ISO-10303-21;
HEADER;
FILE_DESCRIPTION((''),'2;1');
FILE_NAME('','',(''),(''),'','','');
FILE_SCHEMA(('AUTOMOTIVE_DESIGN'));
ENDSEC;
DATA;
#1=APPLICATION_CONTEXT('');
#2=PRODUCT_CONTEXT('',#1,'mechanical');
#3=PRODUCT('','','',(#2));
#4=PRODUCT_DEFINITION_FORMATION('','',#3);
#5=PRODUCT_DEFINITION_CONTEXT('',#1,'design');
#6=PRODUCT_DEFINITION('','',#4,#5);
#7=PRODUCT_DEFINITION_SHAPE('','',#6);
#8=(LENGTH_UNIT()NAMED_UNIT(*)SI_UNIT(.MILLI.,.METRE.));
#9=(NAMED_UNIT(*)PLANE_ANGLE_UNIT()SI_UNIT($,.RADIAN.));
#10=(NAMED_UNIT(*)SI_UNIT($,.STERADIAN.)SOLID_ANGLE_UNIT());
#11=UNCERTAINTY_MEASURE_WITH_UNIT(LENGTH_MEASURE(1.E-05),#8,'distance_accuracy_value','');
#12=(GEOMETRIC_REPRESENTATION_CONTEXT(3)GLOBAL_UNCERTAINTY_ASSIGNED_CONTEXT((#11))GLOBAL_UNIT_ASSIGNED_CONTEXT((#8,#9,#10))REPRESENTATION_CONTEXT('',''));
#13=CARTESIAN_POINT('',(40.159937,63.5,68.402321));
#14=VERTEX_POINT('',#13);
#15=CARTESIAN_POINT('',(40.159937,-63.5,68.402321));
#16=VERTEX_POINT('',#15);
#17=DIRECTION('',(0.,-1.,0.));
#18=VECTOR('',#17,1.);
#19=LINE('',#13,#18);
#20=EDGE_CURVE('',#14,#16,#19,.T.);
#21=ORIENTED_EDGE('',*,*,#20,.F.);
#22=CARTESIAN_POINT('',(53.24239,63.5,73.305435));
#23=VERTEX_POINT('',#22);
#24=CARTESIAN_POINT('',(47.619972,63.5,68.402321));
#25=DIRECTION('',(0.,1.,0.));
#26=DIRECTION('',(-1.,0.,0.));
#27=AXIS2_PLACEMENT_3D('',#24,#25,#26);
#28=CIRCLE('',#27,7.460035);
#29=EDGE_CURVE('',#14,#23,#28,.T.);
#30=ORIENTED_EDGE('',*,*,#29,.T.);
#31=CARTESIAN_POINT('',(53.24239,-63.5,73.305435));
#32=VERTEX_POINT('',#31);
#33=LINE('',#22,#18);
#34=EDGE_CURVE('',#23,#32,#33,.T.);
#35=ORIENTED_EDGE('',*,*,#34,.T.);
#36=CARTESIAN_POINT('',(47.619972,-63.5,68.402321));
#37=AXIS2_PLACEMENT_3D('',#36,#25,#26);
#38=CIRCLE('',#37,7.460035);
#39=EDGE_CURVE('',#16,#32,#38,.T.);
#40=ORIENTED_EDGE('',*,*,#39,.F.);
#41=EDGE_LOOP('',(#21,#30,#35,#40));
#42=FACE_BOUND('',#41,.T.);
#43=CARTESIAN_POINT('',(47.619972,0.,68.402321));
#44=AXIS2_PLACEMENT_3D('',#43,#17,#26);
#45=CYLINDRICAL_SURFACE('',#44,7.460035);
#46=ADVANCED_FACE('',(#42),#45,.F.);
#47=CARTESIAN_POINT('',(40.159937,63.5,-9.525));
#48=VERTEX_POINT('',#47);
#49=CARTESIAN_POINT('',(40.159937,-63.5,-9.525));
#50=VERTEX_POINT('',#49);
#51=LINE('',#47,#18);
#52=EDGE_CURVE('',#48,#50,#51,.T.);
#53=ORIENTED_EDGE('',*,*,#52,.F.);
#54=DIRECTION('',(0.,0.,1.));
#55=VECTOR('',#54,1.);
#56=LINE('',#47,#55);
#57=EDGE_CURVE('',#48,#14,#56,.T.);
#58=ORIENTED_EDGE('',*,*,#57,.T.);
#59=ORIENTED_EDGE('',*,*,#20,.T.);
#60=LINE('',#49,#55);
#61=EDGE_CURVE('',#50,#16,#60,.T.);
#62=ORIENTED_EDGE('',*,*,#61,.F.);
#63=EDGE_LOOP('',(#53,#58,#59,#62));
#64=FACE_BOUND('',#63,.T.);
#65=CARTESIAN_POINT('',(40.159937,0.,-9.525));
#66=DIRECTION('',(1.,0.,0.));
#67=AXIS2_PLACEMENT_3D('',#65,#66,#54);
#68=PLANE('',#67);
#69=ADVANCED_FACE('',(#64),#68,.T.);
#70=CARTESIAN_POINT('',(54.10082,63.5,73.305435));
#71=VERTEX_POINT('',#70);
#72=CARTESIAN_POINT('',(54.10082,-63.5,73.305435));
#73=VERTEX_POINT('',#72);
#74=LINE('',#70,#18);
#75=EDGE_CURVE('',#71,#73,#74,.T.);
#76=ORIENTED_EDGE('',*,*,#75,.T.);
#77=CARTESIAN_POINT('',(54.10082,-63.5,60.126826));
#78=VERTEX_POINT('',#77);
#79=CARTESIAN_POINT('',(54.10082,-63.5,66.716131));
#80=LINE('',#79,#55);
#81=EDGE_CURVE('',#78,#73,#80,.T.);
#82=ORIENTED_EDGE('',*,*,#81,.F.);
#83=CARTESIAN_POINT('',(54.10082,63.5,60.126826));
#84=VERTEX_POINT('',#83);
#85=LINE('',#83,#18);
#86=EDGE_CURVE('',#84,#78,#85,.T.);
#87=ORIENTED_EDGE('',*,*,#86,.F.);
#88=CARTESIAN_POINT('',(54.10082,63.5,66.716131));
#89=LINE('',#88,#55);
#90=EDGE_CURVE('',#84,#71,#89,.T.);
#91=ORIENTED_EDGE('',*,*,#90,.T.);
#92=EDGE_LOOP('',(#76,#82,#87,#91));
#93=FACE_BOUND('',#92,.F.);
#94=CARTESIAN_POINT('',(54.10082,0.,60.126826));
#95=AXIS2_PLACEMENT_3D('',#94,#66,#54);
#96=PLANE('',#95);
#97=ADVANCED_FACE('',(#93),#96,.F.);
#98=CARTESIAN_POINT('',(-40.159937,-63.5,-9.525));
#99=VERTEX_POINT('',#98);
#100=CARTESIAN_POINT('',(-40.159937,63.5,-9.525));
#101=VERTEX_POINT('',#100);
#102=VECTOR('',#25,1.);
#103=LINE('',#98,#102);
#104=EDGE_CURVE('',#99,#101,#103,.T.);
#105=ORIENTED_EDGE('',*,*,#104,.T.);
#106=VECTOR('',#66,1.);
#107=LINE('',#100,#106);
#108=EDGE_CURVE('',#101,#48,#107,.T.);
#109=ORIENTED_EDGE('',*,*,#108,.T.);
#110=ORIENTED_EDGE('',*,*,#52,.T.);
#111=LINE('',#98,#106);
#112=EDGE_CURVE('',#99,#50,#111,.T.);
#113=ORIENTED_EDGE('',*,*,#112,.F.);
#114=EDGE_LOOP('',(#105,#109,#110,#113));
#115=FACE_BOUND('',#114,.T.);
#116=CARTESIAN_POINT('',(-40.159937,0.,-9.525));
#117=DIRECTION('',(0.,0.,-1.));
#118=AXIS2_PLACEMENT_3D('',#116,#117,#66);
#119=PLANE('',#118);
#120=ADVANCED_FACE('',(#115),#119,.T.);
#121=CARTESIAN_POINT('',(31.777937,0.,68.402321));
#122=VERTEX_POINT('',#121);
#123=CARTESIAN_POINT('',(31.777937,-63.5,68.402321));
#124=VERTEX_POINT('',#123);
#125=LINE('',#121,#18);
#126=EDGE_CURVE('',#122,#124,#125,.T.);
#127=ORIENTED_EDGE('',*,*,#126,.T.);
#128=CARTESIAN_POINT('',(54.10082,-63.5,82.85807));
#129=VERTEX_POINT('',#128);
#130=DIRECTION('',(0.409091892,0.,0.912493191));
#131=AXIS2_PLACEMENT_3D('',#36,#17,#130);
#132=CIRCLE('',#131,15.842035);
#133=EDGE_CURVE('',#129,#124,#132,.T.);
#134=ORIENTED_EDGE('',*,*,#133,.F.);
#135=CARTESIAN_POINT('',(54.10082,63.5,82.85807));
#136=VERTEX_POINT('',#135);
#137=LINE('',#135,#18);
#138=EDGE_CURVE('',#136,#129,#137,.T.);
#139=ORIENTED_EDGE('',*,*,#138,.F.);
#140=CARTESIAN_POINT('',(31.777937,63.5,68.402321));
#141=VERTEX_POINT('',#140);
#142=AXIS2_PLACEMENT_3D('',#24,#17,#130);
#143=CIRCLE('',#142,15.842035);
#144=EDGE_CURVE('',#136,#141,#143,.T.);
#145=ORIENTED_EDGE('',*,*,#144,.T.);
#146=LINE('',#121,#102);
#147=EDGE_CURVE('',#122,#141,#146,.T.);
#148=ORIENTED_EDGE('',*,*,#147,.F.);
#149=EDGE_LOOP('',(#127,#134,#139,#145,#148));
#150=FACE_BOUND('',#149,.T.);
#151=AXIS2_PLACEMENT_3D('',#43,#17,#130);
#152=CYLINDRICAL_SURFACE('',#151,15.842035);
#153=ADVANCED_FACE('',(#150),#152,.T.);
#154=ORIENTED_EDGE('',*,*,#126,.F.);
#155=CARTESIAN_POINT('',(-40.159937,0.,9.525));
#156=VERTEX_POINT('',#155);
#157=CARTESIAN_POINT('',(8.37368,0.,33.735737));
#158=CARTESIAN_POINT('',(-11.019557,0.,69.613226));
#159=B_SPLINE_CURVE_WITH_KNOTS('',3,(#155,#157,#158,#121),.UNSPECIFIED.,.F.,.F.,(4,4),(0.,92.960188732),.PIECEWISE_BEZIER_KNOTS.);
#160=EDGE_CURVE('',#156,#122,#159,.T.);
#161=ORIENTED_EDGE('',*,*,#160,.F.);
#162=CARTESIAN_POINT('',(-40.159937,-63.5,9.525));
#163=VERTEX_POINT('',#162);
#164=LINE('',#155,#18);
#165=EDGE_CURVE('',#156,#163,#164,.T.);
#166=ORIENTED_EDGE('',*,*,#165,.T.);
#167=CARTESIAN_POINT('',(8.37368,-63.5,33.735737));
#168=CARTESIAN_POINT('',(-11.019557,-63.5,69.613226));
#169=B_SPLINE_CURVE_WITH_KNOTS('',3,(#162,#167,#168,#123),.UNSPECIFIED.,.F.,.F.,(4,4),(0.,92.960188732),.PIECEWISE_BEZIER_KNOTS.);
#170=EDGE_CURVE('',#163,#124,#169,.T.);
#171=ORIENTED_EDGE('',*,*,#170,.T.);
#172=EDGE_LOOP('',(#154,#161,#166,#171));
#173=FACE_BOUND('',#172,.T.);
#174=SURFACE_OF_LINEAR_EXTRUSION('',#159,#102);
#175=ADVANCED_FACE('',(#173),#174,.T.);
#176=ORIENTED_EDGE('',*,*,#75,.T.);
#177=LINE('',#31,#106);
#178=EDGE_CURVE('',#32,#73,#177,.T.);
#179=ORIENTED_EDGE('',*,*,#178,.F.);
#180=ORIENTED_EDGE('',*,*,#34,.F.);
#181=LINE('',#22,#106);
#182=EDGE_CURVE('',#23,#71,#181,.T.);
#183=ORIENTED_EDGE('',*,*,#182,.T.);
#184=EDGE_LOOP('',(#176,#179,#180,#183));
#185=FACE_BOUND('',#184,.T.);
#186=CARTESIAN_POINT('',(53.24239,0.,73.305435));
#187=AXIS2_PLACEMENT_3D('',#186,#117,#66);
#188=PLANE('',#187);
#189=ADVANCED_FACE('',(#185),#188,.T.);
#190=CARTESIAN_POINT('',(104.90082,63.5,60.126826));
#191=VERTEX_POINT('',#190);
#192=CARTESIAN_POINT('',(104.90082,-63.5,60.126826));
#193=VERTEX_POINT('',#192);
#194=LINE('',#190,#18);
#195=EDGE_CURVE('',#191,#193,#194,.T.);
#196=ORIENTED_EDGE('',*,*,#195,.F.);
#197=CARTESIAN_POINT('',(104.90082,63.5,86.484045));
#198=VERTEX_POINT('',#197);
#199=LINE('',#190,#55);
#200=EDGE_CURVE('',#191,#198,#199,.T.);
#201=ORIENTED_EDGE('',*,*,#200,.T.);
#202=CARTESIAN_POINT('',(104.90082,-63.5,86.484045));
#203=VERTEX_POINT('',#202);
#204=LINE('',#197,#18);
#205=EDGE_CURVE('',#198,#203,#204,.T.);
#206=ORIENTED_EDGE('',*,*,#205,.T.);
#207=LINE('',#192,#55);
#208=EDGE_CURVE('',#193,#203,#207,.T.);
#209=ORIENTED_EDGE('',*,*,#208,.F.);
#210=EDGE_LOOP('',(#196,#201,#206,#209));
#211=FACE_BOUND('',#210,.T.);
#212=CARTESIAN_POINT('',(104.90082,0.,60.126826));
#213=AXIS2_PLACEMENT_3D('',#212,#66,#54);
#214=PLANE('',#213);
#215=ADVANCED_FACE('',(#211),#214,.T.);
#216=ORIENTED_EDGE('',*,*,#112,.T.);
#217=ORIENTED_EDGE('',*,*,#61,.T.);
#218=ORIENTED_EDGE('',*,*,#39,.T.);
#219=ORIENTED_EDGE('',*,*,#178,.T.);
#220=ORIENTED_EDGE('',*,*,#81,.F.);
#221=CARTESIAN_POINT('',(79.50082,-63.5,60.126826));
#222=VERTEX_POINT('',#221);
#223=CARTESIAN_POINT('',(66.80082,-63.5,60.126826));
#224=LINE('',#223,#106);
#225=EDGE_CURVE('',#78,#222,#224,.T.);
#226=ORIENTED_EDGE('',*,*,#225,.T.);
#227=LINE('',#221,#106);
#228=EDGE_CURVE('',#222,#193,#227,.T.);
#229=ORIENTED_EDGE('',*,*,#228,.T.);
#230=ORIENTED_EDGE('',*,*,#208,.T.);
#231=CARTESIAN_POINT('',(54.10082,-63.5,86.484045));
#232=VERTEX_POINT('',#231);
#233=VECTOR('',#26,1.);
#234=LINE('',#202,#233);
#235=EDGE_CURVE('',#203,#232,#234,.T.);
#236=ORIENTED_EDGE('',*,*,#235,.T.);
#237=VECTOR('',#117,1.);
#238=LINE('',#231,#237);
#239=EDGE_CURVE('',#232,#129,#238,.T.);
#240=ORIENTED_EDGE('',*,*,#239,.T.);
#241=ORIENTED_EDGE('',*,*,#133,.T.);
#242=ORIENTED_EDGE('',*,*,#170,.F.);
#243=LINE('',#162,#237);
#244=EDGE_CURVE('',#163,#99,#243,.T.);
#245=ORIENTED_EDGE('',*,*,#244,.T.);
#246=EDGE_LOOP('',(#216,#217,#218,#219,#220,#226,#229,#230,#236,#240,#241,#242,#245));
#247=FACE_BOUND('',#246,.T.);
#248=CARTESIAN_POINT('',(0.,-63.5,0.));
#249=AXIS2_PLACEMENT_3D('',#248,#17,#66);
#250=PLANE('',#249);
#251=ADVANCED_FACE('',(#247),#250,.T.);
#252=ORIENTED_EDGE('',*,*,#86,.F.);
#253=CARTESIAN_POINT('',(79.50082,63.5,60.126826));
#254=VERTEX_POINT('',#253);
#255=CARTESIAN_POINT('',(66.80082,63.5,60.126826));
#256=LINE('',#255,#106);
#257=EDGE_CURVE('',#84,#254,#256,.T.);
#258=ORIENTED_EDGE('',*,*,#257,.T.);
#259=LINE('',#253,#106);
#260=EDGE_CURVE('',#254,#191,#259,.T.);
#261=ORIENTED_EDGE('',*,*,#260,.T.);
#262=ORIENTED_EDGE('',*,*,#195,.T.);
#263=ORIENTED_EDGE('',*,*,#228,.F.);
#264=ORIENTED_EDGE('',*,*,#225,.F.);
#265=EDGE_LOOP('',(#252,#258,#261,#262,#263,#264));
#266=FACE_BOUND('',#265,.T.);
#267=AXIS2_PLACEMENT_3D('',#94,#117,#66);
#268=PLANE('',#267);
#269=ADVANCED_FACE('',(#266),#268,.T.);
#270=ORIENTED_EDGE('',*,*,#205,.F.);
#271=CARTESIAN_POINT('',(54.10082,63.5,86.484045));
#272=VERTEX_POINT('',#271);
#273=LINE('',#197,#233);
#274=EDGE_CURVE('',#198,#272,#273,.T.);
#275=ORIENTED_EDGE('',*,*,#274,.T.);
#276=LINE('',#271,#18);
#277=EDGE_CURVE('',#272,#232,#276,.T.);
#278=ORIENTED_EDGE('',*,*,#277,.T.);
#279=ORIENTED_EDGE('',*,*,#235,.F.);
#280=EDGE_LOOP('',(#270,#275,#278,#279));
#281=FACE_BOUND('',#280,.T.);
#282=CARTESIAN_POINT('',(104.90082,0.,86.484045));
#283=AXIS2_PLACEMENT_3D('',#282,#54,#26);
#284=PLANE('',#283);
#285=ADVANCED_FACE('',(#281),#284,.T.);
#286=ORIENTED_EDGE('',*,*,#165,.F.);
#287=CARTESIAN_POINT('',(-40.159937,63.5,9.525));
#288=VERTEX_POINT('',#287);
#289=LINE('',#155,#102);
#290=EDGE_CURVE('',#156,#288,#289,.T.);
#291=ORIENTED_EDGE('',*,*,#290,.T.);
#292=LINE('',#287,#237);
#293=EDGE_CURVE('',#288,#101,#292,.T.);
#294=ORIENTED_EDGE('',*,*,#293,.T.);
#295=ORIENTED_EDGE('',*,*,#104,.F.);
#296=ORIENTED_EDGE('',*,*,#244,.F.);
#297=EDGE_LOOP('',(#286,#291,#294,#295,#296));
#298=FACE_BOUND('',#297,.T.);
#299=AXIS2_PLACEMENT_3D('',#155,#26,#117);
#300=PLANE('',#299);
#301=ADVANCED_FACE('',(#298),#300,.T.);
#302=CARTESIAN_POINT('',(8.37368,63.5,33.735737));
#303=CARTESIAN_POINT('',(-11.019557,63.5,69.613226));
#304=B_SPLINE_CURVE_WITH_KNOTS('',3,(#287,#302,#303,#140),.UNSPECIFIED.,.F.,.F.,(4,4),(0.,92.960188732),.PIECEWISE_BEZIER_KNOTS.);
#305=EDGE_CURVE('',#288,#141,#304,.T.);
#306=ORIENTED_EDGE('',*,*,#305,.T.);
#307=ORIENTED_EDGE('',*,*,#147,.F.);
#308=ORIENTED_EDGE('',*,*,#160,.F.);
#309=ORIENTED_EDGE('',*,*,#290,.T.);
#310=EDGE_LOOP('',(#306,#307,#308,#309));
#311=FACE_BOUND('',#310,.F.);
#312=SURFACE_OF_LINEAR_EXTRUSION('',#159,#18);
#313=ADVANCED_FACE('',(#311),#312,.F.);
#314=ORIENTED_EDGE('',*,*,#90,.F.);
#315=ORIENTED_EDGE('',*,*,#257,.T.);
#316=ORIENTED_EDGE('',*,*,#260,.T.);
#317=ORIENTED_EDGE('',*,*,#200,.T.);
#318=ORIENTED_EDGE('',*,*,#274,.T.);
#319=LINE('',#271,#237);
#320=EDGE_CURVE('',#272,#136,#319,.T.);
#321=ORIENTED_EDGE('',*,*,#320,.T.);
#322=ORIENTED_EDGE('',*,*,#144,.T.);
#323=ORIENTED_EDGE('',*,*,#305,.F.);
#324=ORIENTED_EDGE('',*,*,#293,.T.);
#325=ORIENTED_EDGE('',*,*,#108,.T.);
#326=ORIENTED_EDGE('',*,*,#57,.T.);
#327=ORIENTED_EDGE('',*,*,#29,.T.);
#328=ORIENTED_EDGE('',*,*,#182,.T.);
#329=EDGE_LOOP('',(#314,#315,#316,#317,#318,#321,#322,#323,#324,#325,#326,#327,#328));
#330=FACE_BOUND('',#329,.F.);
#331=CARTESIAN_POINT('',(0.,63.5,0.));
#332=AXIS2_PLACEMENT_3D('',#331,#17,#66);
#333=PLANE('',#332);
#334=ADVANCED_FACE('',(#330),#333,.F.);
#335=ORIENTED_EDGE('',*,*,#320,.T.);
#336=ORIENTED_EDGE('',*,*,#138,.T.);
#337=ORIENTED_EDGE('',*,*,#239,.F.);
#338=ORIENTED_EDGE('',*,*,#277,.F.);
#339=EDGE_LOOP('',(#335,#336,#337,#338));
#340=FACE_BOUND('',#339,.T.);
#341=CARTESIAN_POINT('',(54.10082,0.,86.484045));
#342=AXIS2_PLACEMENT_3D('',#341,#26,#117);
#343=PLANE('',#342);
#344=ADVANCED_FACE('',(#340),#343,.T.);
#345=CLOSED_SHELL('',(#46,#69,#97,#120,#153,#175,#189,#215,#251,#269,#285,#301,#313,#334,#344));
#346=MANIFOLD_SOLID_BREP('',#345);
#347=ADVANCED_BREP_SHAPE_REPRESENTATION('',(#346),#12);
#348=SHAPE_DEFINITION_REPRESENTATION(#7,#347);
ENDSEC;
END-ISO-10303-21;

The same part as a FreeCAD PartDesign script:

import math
import FreeCAD as App
import Part
import Sketcher
Q = App.Units.Quantity

doc = App.newDocument("Part")
body = doc.addObject("PartDesign::Body", "Body")

# Sketch on XZ plane
sketch1 = body.newObject("Sketcher::SketchObject", "Sketch")
sketch1.AttachmentSupport = (doc.getObject("XZ_Plane"), [""])
sketch1.MapMode = "FlatFace"
sketch1.addGeometry([
    Part.LineSegment(App.Vector(-40.159937, -9.525, 0), App.Vector(40.159937, -9.525, 0)),  # 0
    Part.LineSegment(App.Vector(40.159937, -9.525, 0), App.Vector(40.159937, 68.402321, 0)),  # 1
    Part.ArcOfCircle(Part.Circle(App.Vector(47.619972, 68.402321, 0), App.Vector(0, 0, 1), 7.460035), math.radians(41.090541), math.radians(180)),  # 2
    Part.LineSegment(App.Vector(53.24239, 73.305435, 0), App.Vector(54.10082, 73.305435, 0)),  # 3
    Part.LineSegment(App.Vector(54.10082, 73.305435, 0), App.Vector(54.10082, 60.126826, 0)),  # 4
    Part.LineSegment(App.Vector(54.10082, 60.126826, 0), App.Vector(79.50082, 60.126826, 0)),  # 5
    Part.LineSegment(App.Vector(79.50082, 60.126826, 0), App.Vector(104.90082, 60.126826, 0)),  # 6
    Part.LineSegment(App.Vector(104.90082, 60.126826, 0), App.Vector(104.90082, 86.484045, 0)),  # 7
    Part.LineSegment(App.Vector(104.90082, 86.484045, 0), App.Vector(54.10082, 86.484045, 0)),  # 8
    Part.LineSegment(App.Vector(54.10082, 86.484045, 0), App.Vector(54.10082, 82.85807, 0)),  # 9
    Part.ArcOfCircle(Part.Circle(App.Vector(47.619972, 68.402321, 0), App.Vector(0, 0, 1), 15.842035), math.radians(65.852198), math.radians(180)),  # 10
    Part.BSplineCurve([App.Vector(-40.159937, 9.525, 0), App.Vector(8.37368, 33.735737, 0), App.Vector(-11.019557, 69.613226, 0), App.Vector(31.777937, 68.402321, 0)], [4, 4], [0, 92.960188732], False, 3, [1, 1, 1, 1], False),  # 11
    Part.LineSegment(App.Vector(-40.159937, 9.525, 0), App.Vector(-40.159937, -9.525, 0)),  # 12
], False)
sketch1.addConstraint([
    Sketcher.Constraint("Block", 11),
    Sketcher.Constraint("Coincident", 0, 2, 1, 1),
    Sketcher.Constraint("Tangent", 1, 2, 2, 2),
    Sketcher.Constraint("Coincident", 2, 1, 3, 1),
    Sketcher.Constraint("Coincident", 3, 2, 4, 1),
    Sketcher.Constraint("Coincident", 4, 2, 5, 1),
    Sketcher.Constraint("Coincident", 5, 2, 6, 1),
    Sketcher.Constraint("Coincident", 6, 2, 7, 1),
    Sketcher.Constraint("Coincident", 7, 2, 8, 1),
    Sketcher.Constraint("Coincident", 8, 2, 9, 1),
    Sketcher.Constraint("Coincident", 9, 2, 10, 1),
    Sketcher.Constraint("Coincident", 10, 2, 11, 2),
    Sketcher.Constraint("Coincident", 11, 1, 12, 1),
    Sketcher.Constraint("Coincident", 12, 2, 0, 1),
    Sketcher.Constraint("Horizontal", 0),
    Sketcher.Constraint("Vertical", 1),
    Sketcher.Constraint("Horizontal", 3),
    Sketcher.Constraint("Vertical", 4),
    Sketcher.Constraint("Horizontal", 5),
    Sketcher.Constraint("Horizontal", 6),
    Sketcher.Constraint("Vertical", 7),
    Sketcher.Constraint("Horizontal", 8),
    Sketcher.Constraint("Vertical", 9),
    Sketcher.Constraint("Vertical", 12),
    Sketcher.Constraint("Coincident", 10, 3, 2, 3),
    Sketcher.Constraint("Horizontal", 1, 2, 10, 2),
    Sketcher.Constraint("Vertical", 4, 2, 8, 2),
    Sketcher.Constraint("Equal", 5, 6),
    Sketcher.Constraint("DistanceX", 5, 1, 5, 2, Q("1 in")),
    Sketcher.Constraint("DistanceY", 12, 2, 12, 1, Q("0.75 in")),
    Sketcher.Constraint("DistanceX", 10, 2, 1, 2, Q("0.33 in")),
    Sketcher.Constraint("Radius", 2, 7.460035),
    Sketcher.Constraint("DistanceX", 3, 1, 3, 2, 0.858429),
    Sketcher.Constraint("DistanceY", 4, 2, 4, 1, 13.178609),
    Sketcher.Constraint("DistanceY", 7, 1, 7, 2, 26.357219),
    Sketcher.Constraint("DistanceY", 9, 2, 9, 1, 3.625975),
])
pad1 = body.newObject("PartDesign::Pad", "Pad")
pad1.Profile = sketch1
pad1.Length = Q("5 in")
pad1.Midplane = True

doc.recompute()
